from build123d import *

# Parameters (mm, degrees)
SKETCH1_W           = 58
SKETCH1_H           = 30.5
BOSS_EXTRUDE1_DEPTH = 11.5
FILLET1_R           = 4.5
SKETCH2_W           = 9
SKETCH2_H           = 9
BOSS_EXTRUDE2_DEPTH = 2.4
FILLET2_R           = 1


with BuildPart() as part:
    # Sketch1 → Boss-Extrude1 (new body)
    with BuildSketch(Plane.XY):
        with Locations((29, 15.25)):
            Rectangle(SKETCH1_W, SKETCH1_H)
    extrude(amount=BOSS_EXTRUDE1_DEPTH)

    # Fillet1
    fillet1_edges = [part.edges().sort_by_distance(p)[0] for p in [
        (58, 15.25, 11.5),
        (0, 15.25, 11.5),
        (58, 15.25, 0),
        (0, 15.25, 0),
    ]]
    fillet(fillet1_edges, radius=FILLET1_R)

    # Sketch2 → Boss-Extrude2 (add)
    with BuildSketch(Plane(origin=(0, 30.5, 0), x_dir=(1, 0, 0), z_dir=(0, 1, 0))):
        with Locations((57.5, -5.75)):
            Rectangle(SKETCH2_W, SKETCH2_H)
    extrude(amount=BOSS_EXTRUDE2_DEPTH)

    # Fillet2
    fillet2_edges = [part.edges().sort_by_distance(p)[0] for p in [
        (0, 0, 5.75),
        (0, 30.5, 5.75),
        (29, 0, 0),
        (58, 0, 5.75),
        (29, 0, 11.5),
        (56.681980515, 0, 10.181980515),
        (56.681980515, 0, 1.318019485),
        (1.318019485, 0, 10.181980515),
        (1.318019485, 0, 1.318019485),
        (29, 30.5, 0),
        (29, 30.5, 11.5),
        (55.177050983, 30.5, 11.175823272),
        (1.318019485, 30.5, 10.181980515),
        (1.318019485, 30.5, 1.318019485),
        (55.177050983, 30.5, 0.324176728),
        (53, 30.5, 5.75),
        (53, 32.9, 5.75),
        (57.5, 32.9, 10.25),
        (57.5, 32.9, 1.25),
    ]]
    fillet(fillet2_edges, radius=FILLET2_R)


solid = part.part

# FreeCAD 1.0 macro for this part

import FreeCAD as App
import Part
import Sketcher
from FreeCAD import Vector
Q = App.Units.Quantity


def edges_at(feature, points):
    """Names of the edges that pass closest to the given points."""
    edges = feature.Shape.Edges
    near = lambda p: min(range(len(edges)), key=lambda i: edges[i].distToShape(Part.Vertex(*p))[0])
    return sorted({f"Edge{near(p) + 1}" for p in points})

doc = App.newDocument("Part")
body = doc.addObject("PartDesign::Body", "Body")

# Sketch on XY plane
sketch1 = body.newObject("Sketcher::SketchObject", "Sketch")
sketch1.AttachmentSupport = (doc.getObject("XY_Plane"), [""])
sketch1.MapMode = "FlatFace"
sketch1.addGeometry([
    Part.LineSegment(Vector(0, 30, 0), Vector(0, 0, 0)),
    Part.LineSegment(Vector(0, 0, 0), Vector(58, 0, 0)),
    Part.LineSegment(Vector(58, 0, 0), Vector(58, 30, 0)),
    Part.LineSegment(Vector(58, 30, 0), Vector(0, 30, 0)),
], False)
sketch1.addConstraint([
    Sketcher.Constraint("Coincident", 0, 2, 1, 1),
    Sketcher.Constraint("Coincident", 1, 2, 2, 1),
    Sketcher.Constraint("Coincident", 2, 2, 3, 1),
    Sketcher.Constraint("Coincident", 3, 2, 0, 1),
    Sketcher.Constraint("Vertical", 0),
    Sketcher.Constraint("Horizontal", 1),
    Sketcher.Constraint("Vertical", 2),
    Sketcher.Constraint("Horizontal", 3),
    Sketcher.Constraint("Coincident", 0, 2, -1, 1),
    Sketcher.Constraint("DistanceX", 1, 1, 1, 2, Q("58 mm")),
    Sketcher.Constraint("DistanceY", 0, 2, 0, 1, Q("30.5 mm")),
])
pad1 = body.newObject("PartDesign::Pad", "Pad")
pad1.Profile = sketch1
pad1.Length = 11.5
doc.recompute()

fillet = body.newObject("PartDesign::Fillet", "Fillet")
fillet.Base = (pad1, edges_at(pad1, [
    (58, 15.25, 11.5),
    (0, 15.25, 11.5),
    (58, 15.25, 0),
    (0, 15.25, 0),
]))
fillet.Radius = 4.5

# Sketch on XZ plane
sketch2 = body.newObject("Sketcher::SketchObject", "Sketch001")
sketch2.AttachmentSupport = (doc.getObject("XZ_Plane"), [""])
sketch2.MapMode = "FlatFace"
sketch2.AttachmentOffset = App.Placement(Vector(0, 0, -30.5), App.Rotation())
sketch2.addGeometry([
    Part.LineSegment(Vector(53, 1, 0), Vector(53, 10, 0)),
    Part.LineSegment(Vector(53, 10, 0), Vector(62, 10, 0)),
    Part.LineSegment(Vector(62, 10, 0), Vector(62, 1, 0)),
    Part.LineSegment(Vector(62, 1, 0), Vector(53, 1, 0)),
], False)
sketch2.addConstraint([
    Sketcher.Constraint("Coincident", 0, 2, 1, 1),
    Sketcher.Constraint("Coincident", 1, 2, 2, 1),
    Sketcher.Constraint("Coincident", 2, 2, 3, 1),
    Sketcher.Constraint("Coincident", 3, 2, 0, 1),
    Sketcher.Constraint("Vertical", 0),
    Sketcher.Constraint("Horizontal", 1),
    Sketcher.Constraint("Vertical", 2),
    Sketcher.Constraint("Horizontal", 3),
    Sketcher.Constraint("Equal", 3, 0),
    Sketcher.Constraint("DistanceX", 1, 1, 1, 2, Q("9 mm")),
    Sketcher.Constraint("DistanceX", -1, 1, 0, 2, Q("53 mm")),
    Sketcher.Constraint("DistanceY", -1, 1, 0, 2, Q("10.25 mm")),
])
pad2 = body.newObject("PartDesign::Pad", "Pad001")
pad2.Profile = sketch2
pad2.Length = 2.4
pad2.Reversed = True
doc.recompute()

fillet2 = body.newObject("PartDesign::Fillet", "Fillet001")
fillet2.Base = (pad2, edges_at(pad2, [
    (0, 0, 5.75),
    (0, 30.5, 5.75),
    (29, 0, 0),
    (58, 0, 5.75),
    (29, 0, 11.5),
    (56.682, 0, 10.182),
    (56.682, 0, 1.318),
    (1.318, 0, 10.182),
    (1.318, 0, 1.318),
    (29, 30.5, 0),
    (29, 30.5, 11.5),
    (55.177, 30.5, 11.176),
    (1.318, 30.5, 10.182),
    (1.318, 30.5, 1.318),
    (55.177, 30.5, 0.324),
    (53, 30.5, 5.75),
    (53, 32.9, 5.75),
    (57.5, 32.9, 10.25),
    (57.5, 32.9, 1.25),
]))
fillet2.Radius = 1

doc.recompute()
